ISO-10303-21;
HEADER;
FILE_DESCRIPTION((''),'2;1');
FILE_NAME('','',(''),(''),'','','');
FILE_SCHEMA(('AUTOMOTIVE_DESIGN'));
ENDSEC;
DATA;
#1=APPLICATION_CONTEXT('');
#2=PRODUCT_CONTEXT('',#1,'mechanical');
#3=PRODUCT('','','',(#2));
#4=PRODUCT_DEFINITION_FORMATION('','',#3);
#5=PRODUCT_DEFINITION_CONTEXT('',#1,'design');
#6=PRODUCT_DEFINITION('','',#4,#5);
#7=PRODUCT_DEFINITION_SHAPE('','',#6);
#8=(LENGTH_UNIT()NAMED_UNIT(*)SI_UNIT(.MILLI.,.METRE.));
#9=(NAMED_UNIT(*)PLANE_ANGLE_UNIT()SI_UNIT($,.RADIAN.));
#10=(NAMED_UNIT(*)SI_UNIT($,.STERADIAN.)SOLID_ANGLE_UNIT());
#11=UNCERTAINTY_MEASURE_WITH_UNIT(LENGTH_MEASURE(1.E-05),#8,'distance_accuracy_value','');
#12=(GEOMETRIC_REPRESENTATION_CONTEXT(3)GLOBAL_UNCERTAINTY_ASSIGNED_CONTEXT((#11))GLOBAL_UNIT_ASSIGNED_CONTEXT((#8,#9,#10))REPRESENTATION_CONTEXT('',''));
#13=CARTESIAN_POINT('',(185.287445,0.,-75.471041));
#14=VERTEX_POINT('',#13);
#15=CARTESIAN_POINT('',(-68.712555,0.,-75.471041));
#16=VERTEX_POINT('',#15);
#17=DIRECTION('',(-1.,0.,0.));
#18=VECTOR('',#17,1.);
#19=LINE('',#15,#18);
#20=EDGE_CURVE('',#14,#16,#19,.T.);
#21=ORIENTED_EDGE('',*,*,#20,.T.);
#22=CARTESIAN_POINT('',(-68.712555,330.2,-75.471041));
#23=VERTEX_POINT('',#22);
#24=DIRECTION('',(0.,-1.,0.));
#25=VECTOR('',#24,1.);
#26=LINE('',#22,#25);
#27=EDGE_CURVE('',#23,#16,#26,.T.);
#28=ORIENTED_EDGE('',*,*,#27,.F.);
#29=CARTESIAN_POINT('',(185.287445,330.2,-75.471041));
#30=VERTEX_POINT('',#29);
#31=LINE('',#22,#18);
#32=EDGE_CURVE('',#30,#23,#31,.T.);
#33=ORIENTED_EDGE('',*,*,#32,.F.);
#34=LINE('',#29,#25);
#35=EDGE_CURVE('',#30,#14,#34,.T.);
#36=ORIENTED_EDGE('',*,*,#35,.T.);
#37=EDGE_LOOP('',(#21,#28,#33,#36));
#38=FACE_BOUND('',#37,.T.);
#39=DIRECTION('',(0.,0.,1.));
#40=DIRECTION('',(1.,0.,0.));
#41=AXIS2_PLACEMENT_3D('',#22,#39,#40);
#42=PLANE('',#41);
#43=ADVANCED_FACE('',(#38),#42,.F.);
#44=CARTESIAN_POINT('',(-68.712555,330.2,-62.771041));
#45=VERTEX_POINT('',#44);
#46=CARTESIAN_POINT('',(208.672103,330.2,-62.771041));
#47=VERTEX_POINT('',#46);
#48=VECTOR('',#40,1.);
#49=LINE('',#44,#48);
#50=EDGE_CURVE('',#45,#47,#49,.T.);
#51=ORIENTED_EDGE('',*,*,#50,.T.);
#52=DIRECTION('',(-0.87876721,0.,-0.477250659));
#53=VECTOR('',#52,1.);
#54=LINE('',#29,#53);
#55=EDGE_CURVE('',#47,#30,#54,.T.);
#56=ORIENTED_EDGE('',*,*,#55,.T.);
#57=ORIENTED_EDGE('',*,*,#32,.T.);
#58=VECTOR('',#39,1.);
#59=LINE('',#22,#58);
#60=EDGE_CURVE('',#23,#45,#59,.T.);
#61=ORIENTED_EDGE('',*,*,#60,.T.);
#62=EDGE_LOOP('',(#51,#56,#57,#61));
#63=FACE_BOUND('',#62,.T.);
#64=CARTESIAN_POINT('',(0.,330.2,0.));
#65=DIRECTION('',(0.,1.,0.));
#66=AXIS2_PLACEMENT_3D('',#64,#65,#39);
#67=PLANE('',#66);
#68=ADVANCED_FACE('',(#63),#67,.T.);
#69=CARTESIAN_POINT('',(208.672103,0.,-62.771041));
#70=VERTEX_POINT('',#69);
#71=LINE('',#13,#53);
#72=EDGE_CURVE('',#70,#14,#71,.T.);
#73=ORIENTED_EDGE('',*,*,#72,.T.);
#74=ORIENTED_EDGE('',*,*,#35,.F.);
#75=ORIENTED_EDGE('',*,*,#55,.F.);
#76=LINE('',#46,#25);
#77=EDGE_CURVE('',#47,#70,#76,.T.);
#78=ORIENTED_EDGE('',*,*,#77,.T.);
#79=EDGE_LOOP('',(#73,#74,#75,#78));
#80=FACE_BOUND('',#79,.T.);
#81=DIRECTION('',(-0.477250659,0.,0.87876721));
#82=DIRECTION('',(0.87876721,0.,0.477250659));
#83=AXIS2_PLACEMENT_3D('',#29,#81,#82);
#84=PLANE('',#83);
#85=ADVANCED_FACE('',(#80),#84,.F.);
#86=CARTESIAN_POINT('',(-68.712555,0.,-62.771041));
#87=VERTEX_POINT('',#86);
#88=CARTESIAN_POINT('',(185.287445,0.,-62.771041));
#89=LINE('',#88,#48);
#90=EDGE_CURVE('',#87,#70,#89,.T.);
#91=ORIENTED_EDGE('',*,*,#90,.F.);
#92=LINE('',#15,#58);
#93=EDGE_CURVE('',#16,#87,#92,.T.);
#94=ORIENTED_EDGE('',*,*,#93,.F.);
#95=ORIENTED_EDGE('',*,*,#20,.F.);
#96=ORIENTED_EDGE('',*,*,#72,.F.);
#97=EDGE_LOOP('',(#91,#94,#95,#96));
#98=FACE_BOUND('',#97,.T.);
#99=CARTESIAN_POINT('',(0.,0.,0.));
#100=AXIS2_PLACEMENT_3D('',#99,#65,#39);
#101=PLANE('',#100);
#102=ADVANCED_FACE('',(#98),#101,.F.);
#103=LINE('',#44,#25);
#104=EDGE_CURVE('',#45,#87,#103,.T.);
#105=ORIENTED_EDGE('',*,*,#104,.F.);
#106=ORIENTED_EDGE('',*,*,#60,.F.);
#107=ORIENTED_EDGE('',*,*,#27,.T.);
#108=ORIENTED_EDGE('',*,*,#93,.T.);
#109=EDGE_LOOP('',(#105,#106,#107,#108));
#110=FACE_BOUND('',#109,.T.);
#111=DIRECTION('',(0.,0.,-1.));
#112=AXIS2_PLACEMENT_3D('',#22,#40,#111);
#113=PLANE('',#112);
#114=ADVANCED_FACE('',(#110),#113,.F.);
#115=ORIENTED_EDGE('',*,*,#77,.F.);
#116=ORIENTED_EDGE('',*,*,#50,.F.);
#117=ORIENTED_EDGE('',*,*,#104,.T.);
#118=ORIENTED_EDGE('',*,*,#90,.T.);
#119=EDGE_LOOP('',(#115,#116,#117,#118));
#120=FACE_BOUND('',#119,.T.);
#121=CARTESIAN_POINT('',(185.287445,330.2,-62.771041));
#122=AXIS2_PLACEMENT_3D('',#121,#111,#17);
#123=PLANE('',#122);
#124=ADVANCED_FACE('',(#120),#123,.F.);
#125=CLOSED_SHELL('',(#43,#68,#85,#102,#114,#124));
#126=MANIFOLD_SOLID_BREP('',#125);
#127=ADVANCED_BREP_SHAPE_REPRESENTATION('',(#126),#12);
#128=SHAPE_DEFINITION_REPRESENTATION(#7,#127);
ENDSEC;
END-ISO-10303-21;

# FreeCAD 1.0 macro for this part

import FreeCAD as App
import Part
import Sketcher

V = App.Vector
Q = App.Units.Quantity


def add_polygon(sketch, points):
    """Adds a closed chain of lines whose ends are joined by coincident constraints."""
    first, n = sketch.GeometryCount, len(points)
    for a, b in zip(points, points[1:] + points[:1]):
        sketch.addGeometry(Part.LineSegment(App.Vector(*a, 0), App.Vector(*b, 0)), False)
    for i in range(n):
        sketch.addConstraint(Sketcher.Constraint("Coincident", first + i, 2, first + (i + 1) % n, 1))

doc = App.newDocument("Part")
body = doc.addObject("PartDesign::Body", "Body")

sketch1 = body.newObject("Sketcher::SketchObject", "Sketch")
sketch1.AttachmentSupport = (doc.getObject("XZ_Plane"), [""])
sketch1.MapMode = "FlatFace"
add_polygon(sketch1, [(209, -63), (185, -75), (-69, -75), (-69, -63)])
sketch1.addConstraint(Sketcher.Constraint("Horizontal", 1))
sketch1.addConstraint(Sketcher.Constraint("Vertical", 2))
sketch1.addConstraint(Sketcher.Constraint("Horizontal", 3))
sketch1.addConstraint(Sketcher.Constraint("DistanceX", 1, 2, 1, 1, Q("10 in")))
sketch1.addConstraint(Sketcher.Constraint("DistanceY", 2, 1, 2, 2, Q("0.5 in")))
sketch1.addConstraint(Sketcher.Constraint("DistanceX", 3, 1, 3, 2, Q("277.384658 mm")))
sketch1.addConstraint(Sketcher.Constraint("DistanceY", 0, 2, -1, 1, Q("75.471041 mm")))
sketch1.addConstraint(Sketcher.Constraint("DistanceX", -1, 1, 0, 2, Q("185.287445 mm")))
pad1 = body.newObject("PartDesign::Pad", "Pad")
pad1.Profile = sketch1
pad1.Length = Q("13 in")
pad1.Reversed = True

doc.recompute()
